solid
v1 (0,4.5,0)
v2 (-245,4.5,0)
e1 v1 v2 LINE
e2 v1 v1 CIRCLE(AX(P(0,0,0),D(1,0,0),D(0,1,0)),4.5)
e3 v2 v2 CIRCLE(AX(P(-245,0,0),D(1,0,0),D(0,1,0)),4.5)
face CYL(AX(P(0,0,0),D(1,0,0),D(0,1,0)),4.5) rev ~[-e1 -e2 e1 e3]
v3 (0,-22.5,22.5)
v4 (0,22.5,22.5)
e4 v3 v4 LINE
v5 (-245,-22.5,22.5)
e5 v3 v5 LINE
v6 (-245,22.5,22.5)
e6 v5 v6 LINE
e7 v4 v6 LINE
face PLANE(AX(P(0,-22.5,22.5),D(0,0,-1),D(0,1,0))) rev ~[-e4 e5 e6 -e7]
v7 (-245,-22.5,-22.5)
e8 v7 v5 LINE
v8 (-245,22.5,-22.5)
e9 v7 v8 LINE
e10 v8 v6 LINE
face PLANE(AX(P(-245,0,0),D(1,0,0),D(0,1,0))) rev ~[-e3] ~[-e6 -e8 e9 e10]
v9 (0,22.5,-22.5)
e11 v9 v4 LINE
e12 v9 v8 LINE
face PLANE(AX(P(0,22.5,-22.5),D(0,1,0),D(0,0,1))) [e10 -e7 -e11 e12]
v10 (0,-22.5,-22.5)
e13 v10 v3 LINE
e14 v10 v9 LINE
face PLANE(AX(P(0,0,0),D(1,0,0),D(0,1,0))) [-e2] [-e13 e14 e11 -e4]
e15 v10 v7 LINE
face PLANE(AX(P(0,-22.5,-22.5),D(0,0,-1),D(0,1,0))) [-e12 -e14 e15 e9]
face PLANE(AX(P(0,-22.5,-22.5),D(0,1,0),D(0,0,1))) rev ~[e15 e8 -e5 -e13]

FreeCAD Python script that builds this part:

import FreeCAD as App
import Part
import Sketcher

doc = App.newDocument("Part")
body = doc.addObject("PartDesign::Body", "Body")

# Sketch on YZ plane
sketch1 = body.newObject("Sketcher::SketchObject", "Sketch")
sketch1.AttachmentSupport = (doc.getObject("YZ_Plane"), [""])
sketch1.MapMode = "FlatFace"
sketch1.addGeometry([
    Part.LineSegment(App.Vector(-22.5, 22.5, 0), App.Vector(-22.5, -22.5, 0)),  # 0
    Part.LineSegment(App.Vector(-22.5, -22.5, 0), App.Vector(22.5, -22.5, 0)),  # 1
    Part.LineSegment(App.Vector(22.5, -22.5, 0), App.Vector(22.5, 22.5, 0)),  # 2
    Part.LineSegment(App.Vector(22.5, 22.5, 0), App.Vector(-22.5, 22.5, 0)),  # 3
    Part.Circle(App.Vector(0, 0, 0), App.Vector(0, 0, 1), 4.5),  # 4
], False)
sketch1.addConstraint([
    Sketcher.Constraint("Coincident", 0, 2, 1, 1),
    Sketcher.Constraint("Coincident", 1, 2, 2, 1),
    Sketcher.Constraint("Coincident", 2, 2, 3, 1),
    Sketcher.Constraint("Coincident", 3, 2, 0, 1),
    Sketcher.Constraint("Vertical", 0),
    Sketcher.Constraint("Horizontal", 1),
    Sketcher.Constraint("Vertical", 2),
    Sketcher.Constraint("Horizontal", 3),
    Sketcher.Constraint("Coincident", 4, 3, -1, 1),
    Sketcher.Constraint("Symmetric", 0, 2, 2, 2, -1, 1),
    Sketcher.Constraint("Equal", 3, 0),
    Sketcher.Constraint("Diameter", 4, 9.0),
    Sketcher.Constraint("DistanceX", 1, 1, 1, 2, 45.0),
])
pad1 = body.newObject("PartDesign::Pad", "Pad")
pad1.Profile = sketch1
pad1.Length = 245
pad1.Reversed = True

doc.recompute()
